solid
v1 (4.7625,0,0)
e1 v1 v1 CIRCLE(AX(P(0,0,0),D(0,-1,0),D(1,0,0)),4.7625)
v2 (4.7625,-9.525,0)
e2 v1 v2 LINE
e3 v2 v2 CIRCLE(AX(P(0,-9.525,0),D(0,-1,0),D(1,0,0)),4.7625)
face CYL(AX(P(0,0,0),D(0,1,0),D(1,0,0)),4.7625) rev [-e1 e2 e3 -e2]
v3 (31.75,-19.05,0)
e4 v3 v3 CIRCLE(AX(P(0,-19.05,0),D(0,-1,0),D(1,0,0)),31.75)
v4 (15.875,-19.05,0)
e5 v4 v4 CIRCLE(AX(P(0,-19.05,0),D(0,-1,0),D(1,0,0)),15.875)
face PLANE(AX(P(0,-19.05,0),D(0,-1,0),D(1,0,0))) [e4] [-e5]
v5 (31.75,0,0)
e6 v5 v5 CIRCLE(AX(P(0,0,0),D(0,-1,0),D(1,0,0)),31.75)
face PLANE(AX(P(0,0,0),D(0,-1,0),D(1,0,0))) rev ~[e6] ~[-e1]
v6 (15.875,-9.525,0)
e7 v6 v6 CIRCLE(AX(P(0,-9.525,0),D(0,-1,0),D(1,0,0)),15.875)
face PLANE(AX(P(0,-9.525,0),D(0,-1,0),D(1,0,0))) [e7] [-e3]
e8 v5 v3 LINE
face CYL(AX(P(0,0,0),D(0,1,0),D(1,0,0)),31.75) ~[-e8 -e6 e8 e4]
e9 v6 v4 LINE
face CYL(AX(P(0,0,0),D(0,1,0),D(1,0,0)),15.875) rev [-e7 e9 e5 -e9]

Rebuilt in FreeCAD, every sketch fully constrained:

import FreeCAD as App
import Part
import Sketcher

V = App.Vector
Q = App.Units.Quantity

doc = App.newDocument("Part")
body = doc.addObject("PartDesign::Body", "Body")

sketch1 = body.newObject("Sketcher::SketchObject", "Sketch")
sketch1.AttachmentSupport = (doc.getObject("XZ_Plane"), [""])
sketch1.MapMode = "FlatFace"
sketch1.addGeometry(Part.Circle(V(0, 0, 0), V(0, 0, 1), 15.9), False)
sketch1.addGeometry(Part.Circle(V(0, 0, 0), V(0, 0, 1), 4.8), False)
sketch1.addConstraint(Sketcher.Constraint("Coincident", 0, 3, -1, 1))
sketch1.addConstraint(Sketcher.Constraint("Coincident", 1, 3, -1, 1))
sketch1.addConstraint(Sketcher.Constraint("Diameter", 0, Q("1.25 in")))
sketch1.addConstraint(Sketcher.Constraint("Diameter", 1, Q("0.375 in")))
pad1 = body.newObject("PartDesign::Pad", "Pad")
pad1.Profile = sketch1
pad1.Length = Q("0.375 in")

sketch2 = body.newObject("Sketcher::SketchObject", "Sketch001")
sketch2.AttachmentSupport = (doc.getObject("XZ_Plane"), [""])
sketch2.MapMode = "FlatFace"
sketch2.addGeometry(Part.Circle(V(0, 0, 0), V(0, 0, 1), 32), False)
sketch2.addGeometry(Part.Circle(V(0, 0, 0), V(0, 0, 1), 16), False)
sketch2.addConstraint(Sketcher.Constraint("Coincident", 0, 3, -1, 1))
sketch2.addConstraint(Sketcher.Constraint("Coincident", 1, 3, -1, 1))
sketch2.addConstraint(Sketcher.Constraint("Diameter", 0, Q("2.5 in")))
sketch2.addConstraint(Sketcher.Constraint("Diameter", 1, Q("1.25 in")))
pad2 = body.newObject("PartDesign::Pad", "Pad001")
pad2.Profile = sketch2
pad2.Length = Q("0.75 in")

doc.recompute()
